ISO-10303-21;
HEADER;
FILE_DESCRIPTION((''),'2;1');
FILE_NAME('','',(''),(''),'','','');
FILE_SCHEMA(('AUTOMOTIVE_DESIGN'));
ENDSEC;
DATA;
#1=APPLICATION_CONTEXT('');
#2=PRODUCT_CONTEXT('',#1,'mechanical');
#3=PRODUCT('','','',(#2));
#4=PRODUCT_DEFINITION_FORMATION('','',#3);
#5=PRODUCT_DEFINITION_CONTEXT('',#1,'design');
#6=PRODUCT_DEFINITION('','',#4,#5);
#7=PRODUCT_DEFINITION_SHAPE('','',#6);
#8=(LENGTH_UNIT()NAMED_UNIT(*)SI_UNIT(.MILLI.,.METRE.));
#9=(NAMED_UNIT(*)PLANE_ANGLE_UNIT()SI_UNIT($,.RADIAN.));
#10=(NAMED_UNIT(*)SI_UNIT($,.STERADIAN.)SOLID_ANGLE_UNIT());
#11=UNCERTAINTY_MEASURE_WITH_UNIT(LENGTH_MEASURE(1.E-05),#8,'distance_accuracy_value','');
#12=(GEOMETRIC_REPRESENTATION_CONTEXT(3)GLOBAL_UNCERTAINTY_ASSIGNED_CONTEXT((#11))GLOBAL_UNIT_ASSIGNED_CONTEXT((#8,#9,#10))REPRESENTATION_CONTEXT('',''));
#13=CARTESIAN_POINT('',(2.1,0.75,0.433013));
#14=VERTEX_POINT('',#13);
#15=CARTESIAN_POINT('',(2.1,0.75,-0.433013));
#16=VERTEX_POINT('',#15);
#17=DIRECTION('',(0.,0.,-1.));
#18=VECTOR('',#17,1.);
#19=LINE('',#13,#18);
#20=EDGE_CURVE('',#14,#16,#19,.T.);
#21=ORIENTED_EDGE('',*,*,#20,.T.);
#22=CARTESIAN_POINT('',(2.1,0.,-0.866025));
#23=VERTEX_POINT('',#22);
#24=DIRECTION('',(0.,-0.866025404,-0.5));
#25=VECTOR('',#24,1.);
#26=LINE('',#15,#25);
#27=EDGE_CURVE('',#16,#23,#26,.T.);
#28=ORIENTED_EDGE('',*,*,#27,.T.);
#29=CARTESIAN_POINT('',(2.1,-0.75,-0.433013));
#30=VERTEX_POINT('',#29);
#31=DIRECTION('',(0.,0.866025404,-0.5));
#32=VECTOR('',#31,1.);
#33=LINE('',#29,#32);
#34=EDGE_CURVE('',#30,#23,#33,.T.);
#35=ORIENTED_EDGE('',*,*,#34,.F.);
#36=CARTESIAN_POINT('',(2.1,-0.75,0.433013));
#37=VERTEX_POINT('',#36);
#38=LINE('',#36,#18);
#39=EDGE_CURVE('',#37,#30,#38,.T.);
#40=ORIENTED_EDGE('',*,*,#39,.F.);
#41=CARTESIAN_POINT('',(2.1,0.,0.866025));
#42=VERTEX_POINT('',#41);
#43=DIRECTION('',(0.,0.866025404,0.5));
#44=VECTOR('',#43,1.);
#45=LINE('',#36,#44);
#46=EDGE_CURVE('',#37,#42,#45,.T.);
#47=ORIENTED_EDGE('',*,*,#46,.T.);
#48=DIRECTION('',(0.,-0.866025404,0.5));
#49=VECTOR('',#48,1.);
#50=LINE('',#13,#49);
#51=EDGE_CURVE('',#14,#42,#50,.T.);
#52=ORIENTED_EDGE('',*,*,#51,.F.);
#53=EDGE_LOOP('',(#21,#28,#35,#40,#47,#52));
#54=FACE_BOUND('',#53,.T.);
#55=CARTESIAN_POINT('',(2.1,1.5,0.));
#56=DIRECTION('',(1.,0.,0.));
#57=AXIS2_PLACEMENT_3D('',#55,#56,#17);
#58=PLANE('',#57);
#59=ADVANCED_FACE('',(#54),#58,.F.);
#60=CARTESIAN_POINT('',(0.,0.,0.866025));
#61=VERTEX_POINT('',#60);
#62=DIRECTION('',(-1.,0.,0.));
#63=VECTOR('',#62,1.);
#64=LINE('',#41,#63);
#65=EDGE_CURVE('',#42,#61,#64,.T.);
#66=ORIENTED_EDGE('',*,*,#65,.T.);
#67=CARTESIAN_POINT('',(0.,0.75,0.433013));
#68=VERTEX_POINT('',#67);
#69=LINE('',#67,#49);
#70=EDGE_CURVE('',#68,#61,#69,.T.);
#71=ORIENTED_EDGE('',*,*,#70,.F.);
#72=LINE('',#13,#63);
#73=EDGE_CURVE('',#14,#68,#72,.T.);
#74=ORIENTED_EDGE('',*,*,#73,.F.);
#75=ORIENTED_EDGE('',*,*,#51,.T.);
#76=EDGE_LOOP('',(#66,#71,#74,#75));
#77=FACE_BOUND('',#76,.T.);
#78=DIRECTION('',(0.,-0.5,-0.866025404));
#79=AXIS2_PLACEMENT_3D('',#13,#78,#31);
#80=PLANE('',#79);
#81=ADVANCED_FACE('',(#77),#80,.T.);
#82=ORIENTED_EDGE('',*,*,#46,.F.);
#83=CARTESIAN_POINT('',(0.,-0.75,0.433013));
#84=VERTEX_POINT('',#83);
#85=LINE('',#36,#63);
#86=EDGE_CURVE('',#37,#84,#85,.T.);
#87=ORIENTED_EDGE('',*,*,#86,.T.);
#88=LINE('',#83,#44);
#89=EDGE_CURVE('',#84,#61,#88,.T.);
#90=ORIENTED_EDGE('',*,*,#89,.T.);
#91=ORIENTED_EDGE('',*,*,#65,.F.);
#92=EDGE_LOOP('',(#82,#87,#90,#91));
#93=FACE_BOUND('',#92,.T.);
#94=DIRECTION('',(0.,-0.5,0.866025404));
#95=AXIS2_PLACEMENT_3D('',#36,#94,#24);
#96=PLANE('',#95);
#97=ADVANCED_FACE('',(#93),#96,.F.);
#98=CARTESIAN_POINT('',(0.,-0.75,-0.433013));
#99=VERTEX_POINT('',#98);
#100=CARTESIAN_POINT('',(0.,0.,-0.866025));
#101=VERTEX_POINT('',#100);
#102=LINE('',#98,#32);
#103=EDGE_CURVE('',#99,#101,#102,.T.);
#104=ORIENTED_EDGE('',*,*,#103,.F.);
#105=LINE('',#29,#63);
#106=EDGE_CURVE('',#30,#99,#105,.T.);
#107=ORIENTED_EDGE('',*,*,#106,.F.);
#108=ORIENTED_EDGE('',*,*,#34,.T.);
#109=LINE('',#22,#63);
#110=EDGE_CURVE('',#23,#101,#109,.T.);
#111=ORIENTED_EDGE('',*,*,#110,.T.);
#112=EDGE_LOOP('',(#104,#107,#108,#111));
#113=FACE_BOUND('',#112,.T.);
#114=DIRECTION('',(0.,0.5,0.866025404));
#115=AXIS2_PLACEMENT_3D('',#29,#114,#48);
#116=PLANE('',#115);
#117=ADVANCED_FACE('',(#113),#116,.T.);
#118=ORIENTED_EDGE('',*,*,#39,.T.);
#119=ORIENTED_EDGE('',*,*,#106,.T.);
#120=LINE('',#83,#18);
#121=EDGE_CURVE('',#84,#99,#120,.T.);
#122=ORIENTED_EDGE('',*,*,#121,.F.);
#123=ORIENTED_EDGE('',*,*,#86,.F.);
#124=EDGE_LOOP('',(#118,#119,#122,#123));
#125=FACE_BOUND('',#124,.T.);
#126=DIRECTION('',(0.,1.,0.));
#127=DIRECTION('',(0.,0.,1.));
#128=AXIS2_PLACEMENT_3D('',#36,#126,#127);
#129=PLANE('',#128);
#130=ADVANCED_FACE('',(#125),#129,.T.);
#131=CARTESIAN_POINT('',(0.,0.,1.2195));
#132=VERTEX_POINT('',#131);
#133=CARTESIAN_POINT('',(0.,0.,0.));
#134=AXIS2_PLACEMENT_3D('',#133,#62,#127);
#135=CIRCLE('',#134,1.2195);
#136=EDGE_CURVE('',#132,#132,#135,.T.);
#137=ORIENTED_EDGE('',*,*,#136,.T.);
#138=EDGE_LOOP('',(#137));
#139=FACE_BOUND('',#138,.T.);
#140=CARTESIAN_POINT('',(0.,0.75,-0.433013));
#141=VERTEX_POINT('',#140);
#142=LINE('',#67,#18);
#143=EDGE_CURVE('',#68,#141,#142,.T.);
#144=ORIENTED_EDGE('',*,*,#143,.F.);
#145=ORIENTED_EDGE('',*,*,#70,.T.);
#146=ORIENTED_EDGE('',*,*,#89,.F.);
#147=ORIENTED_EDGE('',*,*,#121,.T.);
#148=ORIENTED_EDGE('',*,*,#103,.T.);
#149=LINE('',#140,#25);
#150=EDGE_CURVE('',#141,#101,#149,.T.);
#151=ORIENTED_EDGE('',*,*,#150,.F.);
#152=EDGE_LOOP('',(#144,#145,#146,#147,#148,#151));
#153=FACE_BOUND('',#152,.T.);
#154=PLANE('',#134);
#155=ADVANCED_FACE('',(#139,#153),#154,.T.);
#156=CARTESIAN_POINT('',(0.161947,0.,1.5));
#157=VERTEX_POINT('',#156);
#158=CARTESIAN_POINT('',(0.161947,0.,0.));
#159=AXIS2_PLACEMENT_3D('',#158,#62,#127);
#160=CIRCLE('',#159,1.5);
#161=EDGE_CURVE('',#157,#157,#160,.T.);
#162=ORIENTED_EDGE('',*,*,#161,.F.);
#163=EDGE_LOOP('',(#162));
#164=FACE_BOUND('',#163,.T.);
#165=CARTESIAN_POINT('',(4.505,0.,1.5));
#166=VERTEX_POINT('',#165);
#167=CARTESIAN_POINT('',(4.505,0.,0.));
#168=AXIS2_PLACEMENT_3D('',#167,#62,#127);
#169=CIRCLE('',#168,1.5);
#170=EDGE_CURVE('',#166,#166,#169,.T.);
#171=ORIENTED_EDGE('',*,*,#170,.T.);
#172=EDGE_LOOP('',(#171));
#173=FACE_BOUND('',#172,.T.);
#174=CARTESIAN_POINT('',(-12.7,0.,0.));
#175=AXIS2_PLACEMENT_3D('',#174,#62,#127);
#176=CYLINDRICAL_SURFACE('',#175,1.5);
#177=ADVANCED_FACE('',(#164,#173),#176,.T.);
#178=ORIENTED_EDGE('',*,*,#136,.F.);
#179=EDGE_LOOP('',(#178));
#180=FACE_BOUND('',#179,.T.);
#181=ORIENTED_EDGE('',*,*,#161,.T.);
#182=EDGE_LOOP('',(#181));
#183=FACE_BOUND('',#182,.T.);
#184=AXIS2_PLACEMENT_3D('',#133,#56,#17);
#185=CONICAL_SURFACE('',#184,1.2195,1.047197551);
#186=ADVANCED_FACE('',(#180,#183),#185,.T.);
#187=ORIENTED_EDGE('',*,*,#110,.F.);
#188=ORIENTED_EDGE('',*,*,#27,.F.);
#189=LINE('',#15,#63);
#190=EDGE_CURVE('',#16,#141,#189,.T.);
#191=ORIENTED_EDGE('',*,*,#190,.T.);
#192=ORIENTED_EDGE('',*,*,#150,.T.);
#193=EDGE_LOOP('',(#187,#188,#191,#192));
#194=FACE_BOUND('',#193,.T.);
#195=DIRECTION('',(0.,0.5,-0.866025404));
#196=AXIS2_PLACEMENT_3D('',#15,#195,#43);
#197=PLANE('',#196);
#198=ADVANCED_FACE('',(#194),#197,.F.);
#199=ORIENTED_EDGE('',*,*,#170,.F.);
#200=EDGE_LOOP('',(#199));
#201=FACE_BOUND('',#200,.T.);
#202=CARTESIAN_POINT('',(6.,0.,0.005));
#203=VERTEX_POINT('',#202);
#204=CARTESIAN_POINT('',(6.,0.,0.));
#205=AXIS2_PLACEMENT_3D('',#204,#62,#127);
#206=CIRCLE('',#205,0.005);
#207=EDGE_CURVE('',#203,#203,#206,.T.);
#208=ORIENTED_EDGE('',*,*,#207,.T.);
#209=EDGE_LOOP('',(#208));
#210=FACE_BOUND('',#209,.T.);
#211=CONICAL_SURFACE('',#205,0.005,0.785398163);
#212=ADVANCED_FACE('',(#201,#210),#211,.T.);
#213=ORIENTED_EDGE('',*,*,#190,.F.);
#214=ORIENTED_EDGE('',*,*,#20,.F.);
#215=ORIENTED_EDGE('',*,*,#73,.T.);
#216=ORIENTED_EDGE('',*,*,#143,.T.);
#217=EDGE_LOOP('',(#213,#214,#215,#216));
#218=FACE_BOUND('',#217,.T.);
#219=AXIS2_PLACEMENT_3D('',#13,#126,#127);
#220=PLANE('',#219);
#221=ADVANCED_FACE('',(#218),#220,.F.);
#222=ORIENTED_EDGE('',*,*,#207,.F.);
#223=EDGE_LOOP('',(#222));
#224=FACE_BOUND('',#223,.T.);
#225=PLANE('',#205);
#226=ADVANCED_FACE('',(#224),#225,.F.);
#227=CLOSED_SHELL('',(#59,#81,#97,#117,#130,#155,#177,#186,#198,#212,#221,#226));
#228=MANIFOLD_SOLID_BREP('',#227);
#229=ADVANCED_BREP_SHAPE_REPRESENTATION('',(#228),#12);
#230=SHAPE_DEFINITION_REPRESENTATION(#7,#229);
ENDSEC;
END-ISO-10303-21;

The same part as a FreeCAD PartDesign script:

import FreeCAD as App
import Part
import Sketcher
Q = App.Units.Quantity

doc = App.newDocument("Part")
body = doc.addObject("PartDesign::Body", "Body")

# Sketch on XY plane
sketch1 = doc.addObject("Sketcher::SketchObject", "Sketch")
body.addObject(sketch1)
sketch1.AttachmentSupport = (doc.XY_Plane, [""])
sketch1.MapMode = "FlatFace"
sketch1.addGeometry([
    Part.LineSegment(App.Vector(0, 1.2195, 0), App.Vector(0, 0, 0)),  # 0
    Part.LineSegment(App.Vector(0, 0, 0), App.Vector(6, 0, 0)),  # 1
    Part.LineSegment(App.Vector(6, 0, 0), App.Vector(6, 0.005, 0)),  # 2
    Part.LineSegment(App.Vector(6, 0.005, 0), App.Vector(4.505, 1.5, 0)),  # 3
    Part.LineSegment(App.Vector(4.505, 1.5, 0), App.Vector(0.161947, 1.5, 0)),  # 4
    Part.LineSegment(App.Vector(0.161947, 1.5, 0), App.Vector(0, 1.2195, 0)),  # 5
], False)
sketch1.addConstraint([
    Sketcher.Constraint("Coincident", 0, 2, 1, 1),
    Sketcher.Constraint("Coincident", 1, 2, 2, 1),
    Sketcher.Constraint("Coincident", 2, 2, 3, 1),
    Sketcher.Constraint("Coincident", 3, 2, 4, 1),
    Sketcher.Constraint("Coincident", 4, 2, 5, 1),
    Sketcher.Constraint("Coincident", 5, 2, 0, 1),
    Sketcher.Constraint("Vertical", 0),
    Sketcher.Constraint("Horizontal", 1),
    Sketcher.Constraint("Vertical", 2),
    Sketcher.Constraint("Horizontal", 4),
    Sketcher.Constraint("Coincident", 0, 2, -1, 1),
    Sketcher.Constraint("DistanceX", 1, 1, 1, 2, 6.0),
    Sketcher.Constraint("Angle", 3, Q("135 deg")),
    Sketcher.Constraint("Angle", 5, Q("-120 deg")),
    Sketcher.Constraint("DistanceY", -1, 1, 3, 2, 1.5),
    Sketcher.Constraint("DistanceY", 2, 1, 2, 2, 0.005),
    Sketcher.Constraint("DistanceY", 0, 2, 0, 1, 1.2195),
])
revolution = doc.addObject("PartDesign::Revolution", "Revolution")
body.addObject(revolution)
revolution.Profile = sketch1
revolution.ReferenceAxis = (sketch1, ["H_Axis"])
revolution.Angle = 360

# Sketch on YZ plane
sketch2 = doc.addObject("Sketcher::SketchObject", "Sketch001")
body.addObject(sketch2)
sketch2.AttachmentSupport = (doc.YZ_Plane, [""])
sketch2.MapMode = "FlatFace"
sketch2.addGeometry([
    Part.LineSegment(App.Vector(0.75, 0.433013, 0), App.Vector(0.75, -0.433013, 0)),  # 0
    Part.LineSegment(App.Vector(0.75, -0.433013, 0), App.Vector(0, -0.866025, 0)),  # 1
    Part.LineSegment(App.Vector(0, -0.866025, 0), App.Vector(-0.75, -0.433013, 0)),  # 2
    Part.LineSegment(App.Vector(-0.75, -0.433013, 0), App.Vector(-0.75, 0.433013, 0)),  # 3
    Part.LineSegment(App.Vector(-0.75, 0.433013, 0), App.Vector(0, 0.866025, 0)),  # 4
    Part.LineSegment(App.Vector(0, 0.866025, 0), App.Vector(0.75, 0.433013, 0)),  # 5
], False)
sketch2.addConstraint([
    Sketcher.Constraint("Coincident", 0, 2, 1, 1),
    Sketcher.Constraint("Coincident", 1, 2, 2, 1),
    Sketcher.Constraint("Coincident", 2, 2, 3, 1),
    Sketcher.Constraint("Coincident", 3, 2, 4, 1),
    Sketcher.Constraint("Coincident", 4, 2, 5, 1),
    Sketcher.Constraint("Coincident", 5, 2, 0, 1),
    Sketcher.Constraint("Vertical", 0),
    Sketcher.Constraint("Vertical", 3),
    Sketcher.Constraint("Symmetric", 0, 2, 3, 2, -1, 1),
    Sketcher.Constraint("Symmetric", 1, 2, 4, 2, -1, 1),
    Sketcher.Constraint("PointOnObject", 1, 2, -2),
    Sketcher.Constraint("Parallel", 2, 5),
    Sketcher.Constraint("Horizontal", 0, 2, 2, 2),
    Sketcher.Constraint("Angle", 1, Q("-150 deg")),
    Sketcher.Constraint("DistanceX", 2, 2, 0, 2, 1.5),
    Sketcher.Constraint("DistanceY", 0, 2, 0, 1, 0.866025),
])
pocket1 = doc.addObject("PartDesign::Pocket", "Pocket")
body.addObject(pocket1)
pocket1.Profile = sketch2
pocket1.Length = 2.1
pocket1.Reversed = True

doc.recompute()
